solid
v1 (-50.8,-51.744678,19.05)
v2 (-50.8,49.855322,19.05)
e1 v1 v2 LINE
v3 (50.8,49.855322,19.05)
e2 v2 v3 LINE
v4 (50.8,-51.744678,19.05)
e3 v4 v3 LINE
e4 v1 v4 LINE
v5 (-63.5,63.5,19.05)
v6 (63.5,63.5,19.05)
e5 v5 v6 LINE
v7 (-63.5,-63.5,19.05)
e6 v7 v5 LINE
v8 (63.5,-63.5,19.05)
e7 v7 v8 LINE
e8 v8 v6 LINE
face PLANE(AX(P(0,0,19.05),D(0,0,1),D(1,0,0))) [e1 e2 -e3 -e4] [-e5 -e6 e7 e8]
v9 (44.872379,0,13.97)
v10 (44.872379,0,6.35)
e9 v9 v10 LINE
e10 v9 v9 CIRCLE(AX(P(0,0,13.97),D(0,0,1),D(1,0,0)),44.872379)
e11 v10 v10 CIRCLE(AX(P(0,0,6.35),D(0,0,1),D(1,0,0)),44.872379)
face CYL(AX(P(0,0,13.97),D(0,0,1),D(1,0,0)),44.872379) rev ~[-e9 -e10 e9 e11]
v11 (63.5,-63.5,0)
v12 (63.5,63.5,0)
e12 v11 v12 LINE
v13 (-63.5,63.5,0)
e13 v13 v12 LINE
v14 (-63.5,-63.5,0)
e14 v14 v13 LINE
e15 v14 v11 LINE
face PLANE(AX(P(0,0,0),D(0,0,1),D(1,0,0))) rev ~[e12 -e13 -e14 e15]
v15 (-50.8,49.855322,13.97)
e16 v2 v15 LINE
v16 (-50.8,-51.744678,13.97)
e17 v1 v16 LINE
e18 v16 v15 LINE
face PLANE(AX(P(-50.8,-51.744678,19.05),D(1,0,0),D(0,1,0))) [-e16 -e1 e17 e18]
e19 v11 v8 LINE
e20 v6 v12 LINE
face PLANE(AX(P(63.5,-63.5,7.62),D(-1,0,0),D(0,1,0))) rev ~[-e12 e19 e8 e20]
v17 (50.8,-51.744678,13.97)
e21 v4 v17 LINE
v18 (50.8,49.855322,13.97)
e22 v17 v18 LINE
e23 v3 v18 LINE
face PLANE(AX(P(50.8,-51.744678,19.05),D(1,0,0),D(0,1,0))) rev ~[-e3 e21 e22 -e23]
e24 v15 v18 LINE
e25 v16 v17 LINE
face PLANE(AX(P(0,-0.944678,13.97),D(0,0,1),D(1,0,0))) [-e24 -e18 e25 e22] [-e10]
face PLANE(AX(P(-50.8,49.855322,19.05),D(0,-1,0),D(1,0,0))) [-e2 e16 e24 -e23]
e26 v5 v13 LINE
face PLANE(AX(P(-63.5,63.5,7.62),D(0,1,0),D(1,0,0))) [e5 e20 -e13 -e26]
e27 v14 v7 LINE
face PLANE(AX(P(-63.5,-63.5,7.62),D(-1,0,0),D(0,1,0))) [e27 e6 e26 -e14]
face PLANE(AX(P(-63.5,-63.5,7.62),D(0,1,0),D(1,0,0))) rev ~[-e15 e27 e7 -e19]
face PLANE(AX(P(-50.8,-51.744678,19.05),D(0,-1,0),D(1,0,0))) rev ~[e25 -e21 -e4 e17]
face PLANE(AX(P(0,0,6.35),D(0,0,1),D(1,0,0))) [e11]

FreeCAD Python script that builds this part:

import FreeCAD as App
import Part
import Sketcher
from FreeCAD import Vector
Q = App.Units.Quantity

doc = App.newDocument("Part")
body = doc.addObject("PartDesign::Body", "Body")

# Sketch on XY plane
sketch1 = body.newObject("Sketcher::SketchObject", "Sketch")
sketch1.AttachmentSupport = (doc.getObject("XY_Plane"), [""])
sketch1.MapMode = "FlatFace"
sketch1.addGeometry(Part.LineSegment(Vector(-64, 64, 0), Vector(-64, -64, 0)), False)
sketch1.addGeometry(Part.LineSegment(Vector(-64, -64, 0), Vector(64, -64, 0)), False)
sketch1.addGeometry(Part.LineSegment(Vector(64, -64, 0), Vector(64, 64, 0)), False)
sketch1.addGeometry(Part.LineSegment(Vector(64, 64, 0), Vector(-64, 64, 0)), False)
sketch1.addConstraint(Sketcher.Constraint("Coincident", 0, 2, 1, 1))
sketch1.addConstraint(Sketcher.Constraint("Coincident", 1, 2, 2, 1))
sketch1.addConstraint(Sketcher.Constraint("Coincident", 2, 2, 3, 1))
sketch1.addConstraint(Sketcher.Constraint("Coincident", 3, 2, 0, 1))
sketch1.addConstraint(Sketcher.Constraint("Vertical", 0))
sketch1.addConstraint(Sketcher.Constraint("Horizontal", 1))
sketch1.addConstraint(Sketcher.Constraint("Vertical", 2))
sketch1.addConstraint(Sketcher.Constraint("Horizontal", 3))
sketch1.addConstraint(Sketcher.Constraint("Symmetric", 0, 2, 2, 2, -1, 1))
sketch1.addConstraint(Sketcher.Constraint("Equal", 3, 0))
sketch1.addConstraint(Sketcher.Constraint("DistanceX", 1, 1, 1, 2, Q("5 in")))
pad1 = body.newObject("PartDesign::Pad", "Pad")
pad1.Profile = sketch1
pad1.Length = Q("0.3 in")

# Sketch on XY plane
sketch2 = body.newObject("Sketcher::SketchObject", "Sketch001")
sketch2.AttachmentSupport = (doc.getObject("XY_Plane"), [""])
sketch2.MapMode = "FlatFace"
sketch2.AttachmentOffset = App.Placement(Vector(0, 0, 0.3 * 25.4), App.Rotation())
sketch2.addGeometry(Part.LineSegment(Vector(-64, 64, 0), Vector(-64, -64, 0)), False)
sketch2.addGeometry(Part.LineSegment(Vector(-64, -64, 0), Vector(64, -64, 0)), False)
sketch2.addGeometry(Part.LineSegment(Vector(64, -64, 0), Vector(64, 64, 0)), False)
sketch2.addGeometry(Part.LineSegment(Vector(64, 64, 0), Vector(-64, 64, 0)), False)
sketch2.addConstraint(Sketcher.Constraint("Coincident", 0, 2, 1, 1))
sketch2.addConstraint(Sketcher.Constraint("Coincident", 1, 2, 2, 1))
sketch2.addConstraint(Sketcher.Constraint("Coincident", 2, 2, 3, 1))
sketch2.addConstraint(Sketcher.Constraint("Coincident", 3, 2, 0, 1))
sketch2.addConstraint(Sketcher.Constraint("Vertical", 0))
sketch2.addConstraint(Sketcher.Constraint("Horizontal", 1))
sketch2.addConstraint(Sketcher.Constraint("Vertical", 2))
sketch2.addConstraint(Sketcher.Constraint("Horizontal", 3))
sketch2.addConstraint(Sketcher.Constraint("Symmetric", 0, 2, 2, 2, -1, 1))
sketch2.addConstraint(Sketcher.Constraint("Equal", 3, 0))
sketch2.addConstraint(Sketcher.Constraint("DistanceX", 1, 1, 1, 2, Q("5 in")))
pad2 = body.newObject("PartDesign::Pad", "Pad001")
pad2.Profile = sketch2
pad2.Length = Q("0.45 in")

# Sketch on XY plane
sketch3 = body.newObject("Sketcher::SketchObject", "Sketch002")
sketch3.AttachmentSupport = (doc.getObject("XY_Plane"), [""])
sketch3.MapMode = "FlatFace"
sketch3.AttachmentOffset = App.Placement(Vector(0, 0, 0.75 * 25.4), App.Rotation())
sketch3.addGeometry(Part.LineSegment(Vector(-51, 50, 0), Vector(-51, -52, 0)), False)
sketch3.addGeometry(Part.LineSegment(Vector(-51, -52, 0), Vector(51, -52, 0)), False)
sketch3.addGeometry(Part.LineSegment(Vector(51, -52, 0), Vector(51, 50, 0)), False)
sketch3.addGeometry(Part.LineSegment(Vector(51, 50, 0), Vector(-51, 50, 0)), False)
sketch3.addConstraint(Sketcher.Constraint("Coincident", 0, 2, 1, 1))
sketch3.addConstraint(Sketcher.Constraint("Coincident", 1, 2, 2, 1))
sketch3.addConstraint(Sketcher.Constraint("Coincident", 2, 2, 3, 1))
sketch3.addConstraint(Sketcher.Constraint("Coincident", 3, 2, 0, 1))
sketch3.addConstraint(Sketcher.Constraint("Vertical", 0))
sketch3.addConstraint(Sketcher.Constraint("Horizontal", 1))
sketch3.addConstraint(Sketcher.Constraint("Vertical", 2))
sketch3.addConstraint(Sketcher.Constraint("Horizontal", 3))
sketch3.addConstraint(Sketcher.Constraint("Equal", 3, 0))
sketch3.addConstraint(Sketcher.Constraint("DistanceX", 1, 1, 1, 2, Q("4 in")))
sketch3.addConstraint(Sketcher.Constraint("DistanceX", 0, 2, -1, 1, Q("2 in")))
sketch3.addConstraint(Sketcher.Constraint("DistanceY", 0, 2, -1, 1, 51.744678))
pocket1 = body.newObject("PartDesign::Pocket", "Pocket")
pocket1.Profile = sketch3
pocket1.Length = Q("0.2 in")

# Sketch on XY plane
sketch4 = body.newObject("Sketcher::SketchObject", "Sketch003")
sketch4.AttachmentSupport = (doc.getObject("XY_Plane"), [""])
sketch4.MapMode = "FlatFace"
sketch4.AttachmentOffset = App.Placement(Vector(0, 0, 0.55 * 25.4), App.Rotation())
sketch4.addGeometry(Part.Circle(Vector(0, 0, 0), Vector(0, 0, 1), 45), False)
sketch4.addConstraint(Sketcher.Constraint("Coincident", 0, 3, -1, 1))
sketch4.addConstraint(Sketcher.Constraint("Diameter", 0, 89.744758))
pocket2 = body.newObject("PartDesign::Pocket", "Pocket001")
pocket2.Profile = sketch4
pocket2.Length = Q("0.3 in")

doc.recompute()
